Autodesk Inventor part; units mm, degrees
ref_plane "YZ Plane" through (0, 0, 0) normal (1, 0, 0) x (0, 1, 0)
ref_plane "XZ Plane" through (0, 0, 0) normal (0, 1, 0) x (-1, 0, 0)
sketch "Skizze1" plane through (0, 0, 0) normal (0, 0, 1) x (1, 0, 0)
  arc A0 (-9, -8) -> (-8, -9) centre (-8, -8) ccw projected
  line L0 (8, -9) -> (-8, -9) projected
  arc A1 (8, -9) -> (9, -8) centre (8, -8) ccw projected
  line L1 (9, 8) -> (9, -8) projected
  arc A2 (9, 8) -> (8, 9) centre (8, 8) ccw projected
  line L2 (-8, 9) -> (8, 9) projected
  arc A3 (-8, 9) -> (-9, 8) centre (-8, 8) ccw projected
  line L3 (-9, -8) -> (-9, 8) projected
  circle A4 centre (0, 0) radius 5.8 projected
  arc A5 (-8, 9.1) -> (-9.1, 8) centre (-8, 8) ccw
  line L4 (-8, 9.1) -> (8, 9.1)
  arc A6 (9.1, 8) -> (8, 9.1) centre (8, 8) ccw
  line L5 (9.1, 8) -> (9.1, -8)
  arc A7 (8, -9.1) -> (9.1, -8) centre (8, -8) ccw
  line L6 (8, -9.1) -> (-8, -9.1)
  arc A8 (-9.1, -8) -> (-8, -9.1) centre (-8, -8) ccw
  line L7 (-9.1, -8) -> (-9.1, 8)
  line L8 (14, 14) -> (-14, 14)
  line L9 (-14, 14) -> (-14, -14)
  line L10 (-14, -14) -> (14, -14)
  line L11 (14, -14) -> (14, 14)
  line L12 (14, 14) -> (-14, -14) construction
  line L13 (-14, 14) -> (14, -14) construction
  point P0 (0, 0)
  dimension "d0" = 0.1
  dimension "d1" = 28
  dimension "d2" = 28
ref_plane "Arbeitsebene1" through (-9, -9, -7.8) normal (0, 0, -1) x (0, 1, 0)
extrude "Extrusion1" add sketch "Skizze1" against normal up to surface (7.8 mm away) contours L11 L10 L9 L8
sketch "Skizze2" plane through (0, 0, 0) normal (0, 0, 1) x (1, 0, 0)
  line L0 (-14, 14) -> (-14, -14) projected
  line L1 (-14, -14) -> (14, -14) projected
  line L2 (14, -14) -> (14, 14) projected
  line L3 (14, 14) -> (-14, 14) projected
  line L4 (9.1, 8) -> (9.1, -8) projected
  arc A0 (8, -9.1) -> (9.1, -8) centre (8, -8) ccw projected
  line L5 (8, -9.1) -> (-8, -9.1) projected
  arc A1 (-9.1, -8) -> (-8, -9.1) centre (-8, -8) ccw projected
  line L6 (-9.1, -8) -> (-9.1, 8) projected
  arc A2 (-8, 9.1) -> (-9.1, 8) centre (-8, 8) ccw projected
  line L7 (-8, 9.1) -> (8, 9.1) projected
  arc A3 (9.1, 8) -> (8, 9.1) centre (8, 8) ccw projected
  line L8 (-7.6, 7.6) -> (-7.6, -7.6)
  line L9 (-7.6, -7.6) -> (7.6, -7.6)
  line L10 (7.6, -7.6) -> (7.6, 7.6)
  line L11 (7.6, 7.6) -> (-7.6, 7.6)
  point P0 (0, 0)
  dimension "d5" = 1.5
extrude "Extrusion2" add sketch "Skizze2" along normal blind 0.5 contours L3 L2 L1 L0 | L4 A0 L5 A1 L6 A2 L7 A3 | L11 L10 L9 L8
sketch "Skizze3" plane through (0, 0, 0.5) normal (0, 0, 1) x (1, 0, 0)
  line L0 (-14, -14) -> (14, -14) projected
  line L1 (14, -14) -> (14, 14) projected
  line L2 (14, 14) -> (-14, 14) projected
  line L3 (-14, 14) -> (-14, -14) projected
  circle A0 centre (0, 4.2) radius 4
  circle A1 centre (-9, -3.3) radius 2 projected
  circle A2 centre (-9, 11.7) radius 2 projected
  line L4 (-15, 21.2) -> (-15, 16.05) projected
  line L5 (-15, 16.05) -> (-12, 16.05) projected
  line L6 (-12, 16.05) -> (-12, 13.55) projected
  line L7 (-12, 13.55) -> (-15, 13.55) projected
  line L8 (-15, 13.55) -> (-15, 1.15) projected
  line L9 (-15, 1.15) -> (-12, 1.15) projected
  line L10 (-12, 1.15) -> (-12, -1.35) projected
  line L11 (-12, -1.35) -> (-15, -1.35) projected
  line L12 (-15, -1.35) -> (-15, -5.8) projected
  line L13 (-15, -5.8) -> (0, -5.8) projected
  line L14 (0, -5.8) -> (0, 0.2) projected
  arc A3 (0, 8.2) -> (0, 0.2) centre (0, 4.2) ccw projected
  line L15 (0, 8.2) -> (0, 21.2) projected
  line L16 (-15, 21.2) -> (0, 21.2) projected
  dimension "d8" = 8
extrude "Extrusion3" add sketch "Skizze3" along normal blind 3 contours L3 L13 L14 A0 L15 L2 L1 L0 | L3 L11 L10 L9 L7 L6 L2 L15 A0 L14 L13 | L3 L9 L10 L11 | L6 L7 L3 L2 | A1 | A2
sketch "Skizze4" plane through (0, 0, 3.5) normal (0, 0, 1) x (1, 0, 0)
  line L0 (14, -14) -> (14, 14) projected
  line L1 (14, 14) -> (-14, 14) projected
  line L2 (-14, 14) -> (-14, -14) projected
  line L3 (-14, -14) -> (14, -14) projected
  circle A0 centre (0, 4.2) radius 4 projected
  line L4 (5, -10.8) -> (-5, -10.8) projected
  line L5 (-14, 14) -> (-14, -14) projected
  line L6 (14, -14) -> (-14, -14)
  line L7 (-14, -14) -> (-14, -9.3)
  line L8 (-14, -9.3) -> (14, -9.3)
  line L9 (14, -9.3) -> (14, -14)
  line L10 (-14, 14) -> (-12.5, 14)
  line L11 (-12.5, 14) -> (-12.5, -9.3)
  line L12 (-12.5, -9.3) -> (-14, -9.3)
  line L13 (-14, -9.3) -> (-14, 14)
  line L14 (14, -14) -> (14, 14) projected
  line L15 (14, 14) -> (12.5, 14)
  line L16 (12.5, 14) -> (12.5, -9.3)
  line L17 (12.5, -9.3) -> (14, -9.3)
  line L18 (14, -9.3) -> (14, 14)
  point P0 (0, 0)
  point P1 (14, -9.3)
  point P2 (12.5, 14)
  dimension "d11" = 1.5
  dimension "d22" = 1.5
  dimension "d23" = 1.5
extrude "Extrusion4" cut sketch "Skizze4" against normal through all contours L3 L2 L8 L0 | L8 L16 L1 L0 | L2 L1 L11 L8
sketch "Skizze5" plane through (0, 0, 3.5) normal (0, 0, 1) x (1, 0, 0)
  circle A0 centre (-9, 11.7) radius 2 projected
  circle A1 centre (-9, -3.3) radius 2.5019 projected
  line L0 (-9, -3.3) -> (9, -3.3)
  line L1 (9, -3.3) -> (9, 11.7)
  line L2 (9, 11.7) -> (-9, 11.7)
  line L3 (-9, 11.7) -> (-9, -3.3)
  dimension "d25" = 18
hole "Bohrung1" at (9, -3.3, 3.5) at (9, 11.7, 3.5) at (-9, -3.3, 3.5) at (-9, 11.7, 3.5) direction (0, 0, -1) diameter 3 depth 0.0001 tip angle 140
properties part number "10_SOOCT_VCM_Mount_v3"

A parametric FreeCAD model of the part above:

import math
import FreeCAD as App
import Part
import Sketcher
from FreeCAD import Vector

doc = App.newDocument("Part")
body = doc.addObject("PartDesign::Body", "Body")

sketch1 = doc.addObject("Sketcher::SketchObject", "Sketch")
body.addObject(sketch1)
sketch1.AttachmentSupport = (doc.XY_Plane, [""])
sketch1.MapMode = "FlatFace"
sketch1.addGeometry(Part.LineSegment(Vector(14, -14, 0), Vector(14, 14, 0)), False)
sketch1.addGeometry(Part.LineSegment(Vector(14, 14, 0), Vector(-14, 14, 0)), False)
sketch1.addGeometry(Part.LineSegment(Vector(-14, 14, 0), Vector(-14, -14, 0)), False)
sketch1.addGeometry(Part.LineSegment(Vector(-14, -14, 0), Vector(14, -14, 0)), False)
sketch1.addGeometry(Part.ArcOfCircle(Part.Circle(Vector(-8, 8, 0), Vector(0, 0, 1), 1.1), math.radians(90), math.radians(180)), False)
sketch1.addGeometry(Part.LineSegment(Vector(-8, 9.1, 0), Vector(8, 9.1, 0)), False)
sketch1.addGeometry(Part.ArcOfCircle(Part.Circle(Vector(8, 8, 0), Vector(0, 0, 1), 1.1), math.radians(0), math.radians(90)), False)
sketch1.addGeometry(Part.LineSegment(Vector(9.1, 8, 0), Vector(9.1, -8, 0)), False)
sketch1.addGeometry(Part.ArcOfCircle(Part.Circle(Vector(8, -8, 0), Vector(0, 0, 1), 1.1), math.radians(-90), math.radians(0)), False)
sketch1.addGeometry(Part.LineSegment(Vector(8, -9.1, 0), Vector(-8, -9.1, 0)), False)
sketch1.addGeometry(Part.ArcOfCircle(Part.Circle(Vector(-8, -8, 0), Vector(0, 0, 1), 1.1), math.radians(180), math.radians(270)), False)
sketch1.addGeometry(Part.LineSegment(Vector(-9.1, -8, 0), Vector(-9.1, 8, 0)), False)
sketch1.addConstraint(Sketcher.Constraint("Coincident", 0, 2, 1, 1))
sketch1.addConstraint(Sketcher.Constraint("Coincident", 1, 2, 2, 1))
sketch1.addConstraint(Sketcher.Constraint("Coincident", 2, 2, 3, 1))
sketch1.addConstraint(Sketcher.Constraint("Coincident", 3, 2, 0, 1))
sketch1.addConstraint(Sketcher.Constraint("Tangent", 4, 1, 5, 1))
sketch1.addConstraint(Sketcher.Constraint("Tangent", 5, 2, 6, 2))
sketch1.addConstraint(Sketcher.Constraint("Tangent", 6, 1, 7, 1))
sketch1.addConstraint(Sketcher.Constraint("Tangent", 7, 2, 8, 2))
sketch1.addConstraint(Sketcher.Constraint("Tangent", 8, 1, 9, 1))
sketch1.addConstraint(Sketcher.Constraint("Tangent", 9, 2, 10, 2))
sketch1.addConstraint(Sketcher.Constraint("Tangent", 10, 1, 11, 1))
sketch1.addConstraint(Sketcher.Constraint("Tangent", 11, 2, 4, 2))
sketch1.addConstraint(Sketcher.Constraint("Vertical", 0))
sketch1.addConstraint(Sketcher.Constraint("Horizontal", 1))
sketch1.addConstraint(Sketcher.Constraint("Vertical", 2))
sketch1.addConstraint(Sketcher.Constraint("Horizontal", 3))
sketch1.addConstraint(Sketcher.Constraint("Horizontal", 5))
sketch1.addConstraint(Sketcher.Constraint("Vertical", 7))
sketch1.addConstraint(Sketcher.Constraint("Horizontal", 9))
sketch1.addConstraint(Sketcher.Constraint("Vertical", 11))
sketch1.addConstraint(Sketcher.Constraint("Equal", 4, 6))
sketch1.addConstraint(Sketcher.Constraint("Equal", 6, 8))
sketch1.addConstraint(Sketcher.Constraint("Equal", 8, 10))
sketch1.addConstraint(Sketcher.Constraint("Symmetric", 4, 3, 8, 3, -1, 1))
sketch1.addConstraint(Sketcher.Constraint("Symmetric", 0, 2, 2, 2, -1, 1))
sketch1.addConstraint(Sketcher.Constraint("Equal", 3, 0))
sketch1.addConstraint(Sketcher.Constraint("Equal", 9, 7))
sketch1.addConstraint(Sketcher.Constraint("DistanceX", 1, 2, 1, 1, 28.0))
sketch1.addConstraint(Sketcher.Constraint("Radius", 4, 1.1))
sketch1.addConstraint(Sketcher.Constraint("DistanceX", 5, 1, 5, 2, 16.0))
pad1 = doc.addObject("PartDesign::Pad", "Pad")
body.addObject(pad1)
pad1.Profile = sketch1
pad1.Length = 7.8
pad1.Reversed = True

sketch2 = doc.addObject("Sketcher::SketchObject", "Sketch001")
body.addObject(sketch2)
sketch2.AttachmentSupport = (doc.XY_Plane, [""])
sketch2.MapMode = "FlatFace"
sketch2.addGeometry(Part.LineSegment(Vector(14, 14, 0), Vector(-14, 14, 0)), False)
sketch2.addGeometry(Part.LineSegment(Vector(-14, 14, 0), Vector(-14, -14, 0)), False)
sketch2.addGeometry(Part.LineSegment(Vector(-14, -14, 0), Vector(14, -14, 0)), False)
sketch2.addGeometry(Part.LineSegment(Vector(14, -14, 0), Vector(14, 14, 0)), False)
sketch2.addConstraint(Sketcher.Constraint("Coincident", 0, 2, 1, 1))
sketch2.addConstraint(Sketcher.Constraint("Coincident", 1, 2, 2, 1))
sketch2.addConstraint(Sketcher.Constraint("Coincident", 2, 2, 3, 1))
sketch2.addConstraint(Sketcher.Constraint("Coincident", 3, 2, 0, 1))
sketch2.addConstraint(Sketcher.Constraint("Horizontal", 0))
sketch2.addConstraint(Sketcher.Constraint("Vertical", 1))
sketch2.addConstraint(Sketcher.Constraint("Horizontal", 2))
sketch2.addConstraint(Sketcher.Constraint("Vertical", 3))
sketch2.addConstraint(Sketcher.Constraint("Symmetric", 0, 2, 2, 2, -1, 1))
sketch2.addConstraint(Sketcher.Constraint("Equal", 2, 1))
sketch2.addConstraint(Sketcher.Constraint("DistanceX", 0, 2, 0, 1, 28.0))
pad2 = doc.addObject("PartDesign::Pad", "Pad001")
body.addObject(pad2)
pad2.Profile = sketch2
pad2.Length = 0.5

sketch3 = doc.addObject("Sketcher::SketchObject", "Sketch002")
body.addObject(sketch3)
sketch3.AttachmentSupport = (doc.XY_Plane, [""])
sketch3.MapMode = "FlatFace"
sketch3.AttachmentOffset = App.Placement(Vector(0, 0, 0.5), App.Rotation())
sketch3.addGeometry(Part.LineSegment(Vector(-14, -14, 0), Vector(14, -14, 0)), False)
sketch3.addGeometry(Part.LineSegment(Vector(14, -14, 0), Vector(14, 14, 0)), False)
sketch3.addGeometry(Part.LineSegment(Vector(14, 14, 0), Vector(-14, 14, 0)), False)
sketch3.addGeometry(Part.LineSegment(Vector(-14, 14, 0), Vector(-14, -14, 0)), False)
sketch3.addGeometry(Part.Circle(Vector(0, 4.2, 0), Vector(0, 0, 1), 4), False)
sketch3.addConstraint(Sketcher.Constraint("Coincident", 0, 2, 1, 1))
sketch3.addConstraint(Sketcher.Constraint("Coincident", 1, 2, 2, 1))
sketch3.addConstraint(Sketcher.Constraint("Coincident", 2, 2, 3, 1))
sketch3.addConstraint(Sketcher.Constraint("Coincident", 3, 2, 0, 1))
sketch3.addConstraint(Sketcher.Constraint("Horizontal", 0))
sketch3.addConstraint(Sketcher.Constraint("Vertical", 1))
sketch3.addConstraint(Sketcher.Constraint("Horizontal", 2))
sketch3.addConstraint(Sketcher.Constraint("Vertical", 3))
sketch3.addConstraint(Sketcher.Constraint("Symmetric", 0, 2, 2, 2, -1, 1))
sketch3.addConstraint(Sketcher.Constraint("PointOnObject", 4, 3, -2))
sketch3.addConstraint(Sketcher.Constraint("Equal", 2, 1))
sketch3.addConstraint(Sketcher.Constraint("Diameter", 4, 8.0))
sketch3.addConstraint(Sketcher.Constraint("DistanceX", 0, 1, 0, 2, 28.0))
sketch3.addConstraint(Sketcher.Constraint("DistanceY", -1, 1, 4, 3, 4.2))
pad3 = doc.addObject("PartDesign::Pad", "Pad002")
body.addObject(pad3)
pad3.Profile = sketch3
pad3.Length = 3

sketch4 = doc.addObject("Sketcher::SketchObject", "Sketch003")
body.addObject(sketch4)
sketch4.AttachmentSupport = (doc.XY_Plane, [""])
sketch4.MapMode = "FlatFace"
sketch4.AttachmentOffset = App.Placement(Vector(0, 0, 3.5), App.Rotation())
sketch4.addGeometry(Part.LineSegment(Vector(-14, -14, 0), Vector(14, -14, 0)), False)
sketch4.addGeometry(Part.LineSegment(Vector(14, -14, 0), Vector(14, 14, 0)), False)
sketch4.addGeometry(Part.LineSegment(Vector(14, 14, 0), Vector(12.5, 14, 0)), False)
sketch4.addGeometry(Part.LineSegment(Vector(12.5, 14, 0), Vector(12.5, -9.3, 0)), False)
sketch4.addGeometry(Part.LineSegment(Vector(12.5, -9.3, 0), Vector(-12.5, -9.3, 0)), False)
sketch4.addGeometry(Part.LineSegment(Vector(-12.5, -9.3, 0), Vector(-12.5, 14, 0)), False)
sketch4.addGeometry(Part.LineSegment(Vector(-12.5, 14, 0), Vector(-14, 14, 0)), False)
sketch4.addGeometry(Part.LineSegment(Vector(-14, 14, 0), Vector(-14, -14, 0)), False)
sketch4.addConstraint(Sketcher.Constraint("Coincident", 0, 2, 1, 1))
sketch4.addConstraint(Sketcher.Constraint("Coincident", 1, 2, 2, 1))
sketch4.addConstraint(Sketcher.Constraint("Coincident", 2, 2, 3, 1))
sketch4.addConstraint(Sketcher.Constraint("Coincident", 3, 2, 4, 1))
sketch4.addConstraint(Sketcher.Constraint("Coincident", 4, 2, 5, 1))
sketch4.addConstraint(Sketcher.Constraint("Coincident", 5, 2, 6, 1))
sketch4.addConstraint(Sketcher.Constraint("Coincident", 6, 2, 7, 1))
sketch4.addConstraint(Sketcher.Constraint("Coincident", 7, 2, 0, 1))
sketch4.addConstraint(Sketcher.Constraint("Horizontal", 0))
sketch4.addConstraint(Sketcher.Constraint("Vertical", 1))
sketch4.addConstraint(Sketcher.Constraint("Horizontal", 2))
sketch4.addConstraint(Sketcher.Constraint("Vertical", 3))
sketch4.addConstraint(Sketcher.Constraint("Horizontal", 4))
sketch4.addConstraint(Sketcher.Constraint("Vertical", 5))
sketch4.addConstraint(Sketcher.Constraint("Horizontal", 6))
sketch4.addConstraint(Sketcher.Constraint("Vertical", 7))
sketch4.addConstraint(Sketcher.Constraint("Symmetric", 0, 2, 6, 2, -1, 1))
sketch4.addConstraint(Sketcher.Constraint("Symmetric", 2, 2, 5, 2, -2))
sketch4.addConstraint(Sketcher.Constraint("Equal", 0, 1))
sketch4.addConstraint(Sketcher.Constraint("DistanceX", 2, 2, 2, 1, 1.5))
sketch4.addConstraint(Sketcher.Constraint("DistanceX", 0, 1, 0, 2, 28.0))
sketch4.addConstraint(Sketcher.Constraint("DistanceY", 3, 2, 3, 1, 23.3))
pocket1 = doc.addObject("PartDesign::Pocket", "Pocket")
body.addObject(pocket1)
pocket1.Profile = sketch4
pocket1.Type = "ThroughAll"

sketch5 = doc.addObject("Sketcher::SketchObject", "Sketch004")
body.addObject(sketch5)
sketch5.AttachmentSupport = (doc.XY_Plane, [""])
sketch5.MapMode = "FlatFace"
sketch5.AttachmentOffset = App.Placement(Vector(0, 0, 3.5), App.Rotation())
sketch5.addGeometry(Part.Circle(Vector(9, -3.3, 0), Vector(0, 0, 1), 1.5), False)
sketch5.addGeometry(Part.Circle(Vector(9, 11.7, 0), Vector(0, 0, 1), 1.5), False)
sketch5.addGeometry(Part.Circle(Vector(-9, -3.3, 0), Vector(0, 0, 1), 1.5), False)
sketch5.addGeometry(Part.Circle(Vector(-9, 11.7, 0), Vector(0, 0, 1), 1.5), False)
sketch5.addConstraint(Sketcher.Constraint("Equal", 0, 1))
sketch5.addConstraint(Sketcher.Constraint("Equal", 1, 2))
sketch5.addConstraint(Sketcher.Constraint("Equal", 2, 3))
sketch5.addConstraint(Sketcher.Constraint("Symmetric", 0, 3, 2, 3, -2))
sketch5.addConstraint(Sketcher.Constraint("Symmetric", 1, 3, 3, 3, -2))
sketch5.addConstraint(Sketcher.Constraint("Vertical", 0, 3, 1, 3))
sketch5.addConstraint(Sketcher.Constraint("Diameter", 0, 3.0))
sketch5.addConstraint(Sketcher.Constraint("DistanceX", -1, 1, 0, 3, 9.0))
sketch5.addConstraint(Sketcher.Constraint("DistanceY", 0, 3, 1, 3, 15.0))
sketch5.addConstraint(Sketcher.Constraint("DistanceY", 0, 3, -1, 1, 3.3))
doc.recompute()
hole = doc.addObject("PartDesign::Hole", "Hole")
body.addObject(hole)
hole.Profile = sketch5
hole.ThreadType = "None"
hole.Diameter = 3
hole.DepthType = "Dimension"
hole.Depth = 0.0001
hole.DrillPoint = "Angled"
hole.DrillPointAngle = 140

doc.recompute()
